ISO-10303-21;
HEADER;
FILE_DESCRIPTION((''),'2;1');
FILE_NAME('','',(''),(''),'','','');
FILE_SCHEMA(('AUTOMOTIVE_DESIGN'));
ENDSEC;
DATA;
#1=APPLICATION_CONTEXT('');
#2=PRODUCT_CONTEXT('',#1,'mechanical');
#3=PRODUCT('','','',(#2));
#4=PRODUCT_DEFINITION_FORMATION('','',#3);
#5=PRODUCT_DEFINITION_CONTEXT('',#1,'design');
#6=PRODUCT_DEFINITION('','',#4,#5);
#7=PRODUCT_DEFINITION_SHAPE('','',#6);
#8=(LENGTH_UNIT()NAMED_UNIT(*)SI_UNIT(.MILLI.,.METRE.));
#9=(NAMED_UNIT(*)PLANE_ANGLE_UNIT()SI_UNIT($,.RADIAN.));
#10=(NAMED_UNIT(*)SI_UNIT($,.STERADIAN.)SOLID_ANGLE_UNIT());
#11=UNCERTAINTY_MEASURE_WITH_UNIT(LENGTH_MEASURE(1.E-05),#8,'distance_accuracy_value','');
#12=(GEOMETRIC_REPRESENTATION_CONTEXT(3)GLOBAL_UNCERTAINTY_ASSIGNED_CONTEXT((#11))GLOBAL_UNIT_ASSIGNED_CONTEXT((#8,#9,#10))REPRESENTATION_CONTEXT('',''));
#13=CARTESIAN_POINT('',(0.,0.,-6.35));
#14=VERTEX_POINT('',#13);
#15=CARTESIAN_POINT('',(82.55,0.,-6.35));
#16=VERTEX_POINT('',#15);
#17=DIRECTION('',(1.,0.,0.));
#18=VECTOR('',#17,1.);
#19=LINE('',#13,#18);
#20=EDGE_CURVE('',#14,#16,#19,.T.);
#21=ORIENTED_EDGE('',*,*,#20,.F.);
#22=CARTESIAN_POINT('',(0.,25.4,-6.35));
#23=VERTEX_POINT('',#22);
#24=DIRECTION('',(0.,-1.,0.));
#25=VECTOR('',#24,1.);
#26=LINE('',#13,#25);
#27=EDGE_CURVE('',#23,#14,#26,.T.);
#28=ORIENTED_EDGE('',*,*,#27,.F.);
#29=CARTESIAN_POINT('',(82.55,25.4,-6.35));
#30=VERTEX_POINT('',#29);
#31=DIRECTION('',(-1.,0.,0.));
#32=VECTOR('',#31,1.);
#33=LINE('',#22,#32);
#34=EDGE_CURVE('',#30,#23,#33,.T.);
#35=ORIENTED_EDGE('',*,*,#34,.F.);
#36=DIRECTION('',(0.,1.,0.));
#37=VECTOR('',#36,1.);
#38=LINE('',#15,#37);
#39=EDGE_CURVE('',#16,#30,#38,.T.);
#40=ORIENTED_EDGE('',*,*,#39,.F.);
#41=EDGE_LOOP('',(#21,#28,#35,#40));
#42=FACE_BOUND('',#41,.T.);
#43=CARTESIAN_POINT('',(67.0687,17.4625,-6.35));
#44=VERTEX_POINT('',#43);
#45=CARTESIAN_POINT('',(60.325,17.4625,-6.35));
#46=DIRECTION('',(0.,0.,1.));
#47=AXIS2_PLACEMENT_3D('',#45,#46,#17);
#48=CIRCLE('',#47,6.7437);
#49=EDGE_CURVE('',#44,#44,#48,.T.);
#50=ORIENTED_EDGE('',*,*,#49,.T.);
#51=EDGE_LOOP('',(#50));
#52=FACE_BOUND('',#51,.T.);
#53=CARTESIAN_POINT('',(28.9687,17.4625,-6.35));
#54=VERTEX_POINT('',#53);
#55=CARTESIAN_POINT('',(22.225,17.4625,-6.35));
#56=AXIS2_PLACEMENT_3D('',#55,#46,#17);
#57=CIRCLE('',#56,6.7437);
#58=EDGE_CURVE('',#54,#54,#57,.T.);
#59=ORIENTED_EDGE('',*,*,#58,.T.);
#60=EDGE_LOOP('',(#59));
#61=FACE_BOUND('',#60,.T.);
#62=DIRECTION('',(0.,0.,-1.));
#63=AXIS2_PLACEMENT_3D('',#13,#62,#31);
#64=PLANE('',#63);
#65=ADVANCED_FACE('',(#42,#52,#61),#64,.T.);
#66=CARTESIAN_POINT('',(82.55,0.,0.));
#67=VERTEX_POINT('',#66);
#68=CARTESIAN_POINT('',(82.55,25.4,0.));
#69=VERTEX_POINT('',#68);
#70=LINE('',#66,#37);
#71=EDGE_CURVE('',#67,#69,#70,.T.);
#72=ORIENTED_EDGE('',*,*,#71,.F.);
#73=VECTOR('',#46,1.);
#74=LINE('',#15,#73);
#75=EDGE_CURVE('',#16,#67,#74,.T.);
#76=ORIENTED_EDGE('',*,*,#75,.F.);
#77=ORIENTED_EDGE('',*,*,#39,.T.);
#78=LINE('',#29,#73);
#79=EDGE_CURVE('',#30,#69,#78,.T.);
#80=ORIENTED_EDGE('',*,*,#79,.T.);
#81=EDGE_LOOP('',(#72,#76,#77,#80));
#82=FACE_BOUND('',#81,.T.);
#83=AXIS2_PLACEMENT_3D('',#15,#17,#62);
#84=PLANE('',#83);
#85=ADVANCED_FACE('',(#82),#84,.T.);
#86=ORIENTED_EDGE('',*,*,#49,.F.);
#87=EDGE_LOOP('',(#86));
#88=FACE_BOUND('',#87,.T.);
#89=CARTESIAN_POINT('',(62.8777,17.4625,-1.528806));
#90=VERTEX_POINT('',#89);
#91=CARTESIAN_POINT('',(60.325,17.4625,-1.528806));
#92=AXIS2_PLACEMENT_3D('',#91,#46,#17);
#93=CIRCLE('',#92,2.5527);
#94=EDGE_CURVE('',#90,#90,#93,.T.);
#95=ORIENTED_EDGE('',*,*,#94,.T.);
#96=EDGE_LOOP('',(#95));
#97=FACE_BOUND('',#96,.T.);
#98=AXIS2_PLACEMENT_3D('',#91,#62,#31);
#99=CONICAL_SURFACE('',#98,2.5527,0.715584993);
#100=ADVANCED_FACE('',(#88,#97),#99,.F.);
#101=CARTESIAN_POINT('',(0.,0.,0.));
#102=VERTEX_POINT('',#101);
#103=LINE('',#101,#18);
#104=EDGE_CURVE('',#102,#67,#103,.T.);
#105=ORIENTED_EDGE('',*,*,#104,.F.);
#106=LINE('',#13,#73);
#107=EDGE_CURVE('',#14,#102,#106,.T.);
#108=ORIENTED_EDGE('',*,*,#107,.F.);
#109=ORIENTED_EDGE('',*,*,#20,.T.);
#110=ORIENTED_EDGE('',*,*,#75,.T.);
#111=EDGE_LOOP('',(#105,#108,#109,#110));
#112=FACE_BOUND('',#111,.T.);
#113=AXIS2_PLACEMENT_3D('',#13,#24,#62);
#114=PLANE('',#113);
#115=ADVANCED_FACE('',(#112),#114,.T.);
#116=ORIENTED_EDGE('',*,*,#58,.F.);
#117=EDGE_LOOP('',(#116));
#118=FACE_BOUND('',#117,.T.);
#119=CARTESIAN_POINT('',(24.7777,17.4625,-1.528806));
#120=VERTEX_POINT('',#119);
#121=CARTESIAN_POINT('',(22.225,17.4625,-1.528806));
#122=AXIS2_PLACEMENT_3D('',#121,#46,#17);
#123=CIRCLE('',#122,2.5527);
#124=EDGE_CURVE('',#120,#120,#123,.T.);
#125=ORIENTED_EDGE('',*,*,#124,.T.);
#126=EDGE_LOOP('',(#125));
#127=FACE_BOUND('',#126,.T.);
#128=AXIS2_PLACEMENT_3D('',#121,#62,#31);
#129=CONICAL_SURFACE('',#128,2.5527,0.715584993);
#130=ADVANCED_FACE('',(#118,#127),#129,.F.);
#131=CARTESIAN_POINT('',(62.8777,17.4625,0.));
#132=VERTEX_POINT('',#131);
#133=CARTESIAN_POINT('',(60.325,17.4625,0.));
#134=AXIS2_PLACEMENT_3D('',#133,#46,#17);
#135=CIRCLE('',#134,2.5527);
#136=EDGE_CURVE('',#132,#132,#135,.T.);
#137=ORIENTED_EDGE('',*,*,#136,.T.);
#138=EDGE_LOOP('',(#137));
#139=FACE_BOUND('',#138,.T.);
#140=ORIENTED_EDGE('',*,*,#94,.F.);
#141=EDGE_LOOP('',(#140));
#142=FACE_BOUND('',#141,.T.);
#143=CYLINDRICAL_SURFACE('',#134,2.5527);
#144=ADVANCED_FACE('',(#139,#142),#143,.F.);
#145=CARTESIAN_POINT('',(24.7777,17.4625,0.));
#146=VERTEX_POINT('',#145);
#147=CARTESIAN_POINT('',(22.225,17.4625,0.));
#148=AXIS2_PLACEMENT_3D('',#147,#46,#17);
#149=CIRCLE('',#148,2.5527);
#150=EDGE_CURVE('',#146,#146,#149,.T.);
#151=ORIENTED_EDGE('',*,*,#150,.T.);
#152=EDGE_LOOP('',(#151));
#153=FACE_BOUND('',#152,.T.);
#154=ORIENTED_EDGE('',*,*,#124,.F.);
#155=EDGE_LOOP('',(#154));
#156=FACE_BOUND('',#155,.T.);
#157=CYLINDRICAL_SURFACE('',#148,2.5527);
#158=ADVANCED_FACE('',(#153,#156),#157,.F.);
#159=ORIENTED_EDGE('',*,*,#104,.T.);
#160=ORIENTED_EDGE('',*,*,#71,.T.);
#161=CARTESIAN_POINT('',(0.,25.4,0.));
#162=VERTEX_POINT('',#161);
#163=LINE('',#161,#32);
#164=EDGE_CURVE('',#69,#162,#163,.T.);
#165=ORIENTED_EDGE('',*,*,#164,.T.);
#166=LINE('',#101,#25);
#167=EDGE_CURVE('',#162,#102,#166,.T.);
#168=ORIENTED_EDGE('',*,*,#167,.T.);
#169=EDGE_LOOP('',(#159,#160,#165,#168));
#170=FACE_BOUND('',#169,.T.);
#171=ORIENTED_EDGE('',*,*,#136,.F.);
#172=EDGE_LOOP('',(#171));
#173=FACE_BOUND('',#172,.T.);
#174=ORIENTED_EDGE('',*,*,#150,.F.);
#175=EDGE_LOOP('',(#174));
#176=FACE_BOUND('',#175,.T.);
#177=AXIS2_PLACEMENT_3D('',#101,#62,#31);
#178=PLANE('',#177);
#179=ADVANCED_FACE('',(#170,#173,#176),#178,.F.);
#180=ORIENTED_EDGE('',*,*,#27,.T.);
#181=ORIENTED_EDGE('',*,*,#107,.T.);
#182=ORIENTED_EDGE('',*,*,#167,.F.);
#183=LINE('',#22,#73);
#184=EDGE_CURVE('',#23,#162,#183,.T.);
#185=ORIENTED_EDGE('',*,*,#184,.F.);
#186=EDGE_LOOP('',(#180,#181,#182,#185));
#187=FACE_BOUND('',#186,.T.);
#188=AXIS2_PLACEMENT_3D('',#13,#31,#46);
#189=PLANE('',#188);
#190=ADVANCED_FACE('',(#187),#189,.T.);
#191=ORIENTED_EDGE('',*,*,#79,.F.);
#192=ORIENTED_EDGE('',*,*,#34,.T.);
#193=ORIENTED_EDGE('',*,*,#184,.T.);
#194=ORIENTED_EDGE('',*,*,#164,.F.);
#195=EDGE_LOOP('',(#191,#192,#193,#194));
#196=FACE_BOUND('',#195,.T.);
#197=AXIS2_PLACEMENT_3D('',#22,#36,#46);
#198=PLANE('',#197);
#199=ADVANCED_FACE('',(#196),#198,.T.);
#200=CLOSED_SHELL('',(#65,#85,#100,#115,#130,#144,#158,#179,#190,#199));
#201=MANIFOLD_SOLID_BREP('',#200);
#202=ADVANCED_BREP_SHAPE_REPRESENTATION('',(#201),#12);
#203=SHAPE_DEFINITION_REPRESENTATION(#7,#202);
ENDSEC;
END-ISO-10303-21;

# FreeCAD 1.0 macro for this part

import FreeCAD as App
import Part
import Sketcher

V = App.Vector
Q = App.Units.Quantity

doc = App.newDocument("Part")
body = doc.addObject("PartDesign::Body", "Body")

# Sketch on XY plane
sketch1 = body.newObject("Sketcher::SketchObject", "Sketch")
sketch1.AttachmentSupport = (doc.getObject("XY_Plane"), [""])
sketch1.MapMode = "FlatFace"
sketch1.addGeometry([
    Part.LineSegment(V(0, 25, 0), V(0, 0, 0)),
    Part.LineSegment(V(0, 0, 0), V(83, 0, 0)),
    Part.LineSegment(V(83, 0, 0), V(83, 25, 0)),
    Part.LineSegment(V(83, 25, 0), V(0, 25, 0)),
], False)
sketch1.addConstraint([
    Sketcher.Constraint("Coincident", 0, 2, 1, 1),
    Sketcher.Constraint("Coincident", 1, 2, 2, 1),
    Sketcher.Constraint("Coincident", 2, 2, 3, 1),
    Sketcher.Constraint("Coincident", 3, 2, 0, 1),
    Sketcher.Constraint("Vertical", 0),
    Sketcher.Constraint("Horizontal", 1),
    Sketcher.Constraint("Vertical", 2),
    Sketcher.Constraint("Horizontal", 3),
    Sketcher.Constraint("Coincident", 0, 2, -1, 1),
    Sketcher.Constraint("DistanceY", 0, 2, 0, 1, Q("1 in")),
    Sketcher.Constraint("DistanceX", 1, 1, 1, 2, Q("3.25 in")),
])
pad1 = body.newObject("PartDesign::Pad", "Pad")
pad1.Profile = sketch1
pad1.Length = Q("0.25 in")
pad1.Reversed = True

# Sketch on YZ plane
sketch2 = body.newObject("Sketcher::SketchObject", "Sketch001")
sketch2.AttachmentSupport = (doc.getObject("YZ_Plane"), [""])
sketch2.MapMode = "FlatFace"
sketch2.AttachmentOffset = App.Placement(V(0, 0, 0.875 * 25.4), App.Rotation())
sketch2.addGeometry([
    Part.LineSegment(V(17.5, -6.3, 0), V(17.5, 0, 0)),  # 0
    Part.LineSegment(V(17.5, 0, 0), V(14.9, 0, 0)),  # 1
    Part.LineSegment(V(14.9, 0, 0), V(14.9, -1.5, 0)),  # 2
    Part.LineSegment(V(14.9, -1.5, 0), V(10.7, -6.3, 0)),  # 3
    Part.LineSegment(V(10.7, -6.3, 0), V(17.5, -6.3, 0)),  # 4
], False)
sketch2.addGeometry(Part.LineSegment(V(17.5, 0, 0), V(17.5, -6.3, 0)), True)  # axis
sketch2.addConstraint([
    Sketcher.Constraint("Coincident", 0, 2, 1, 1),
    Sketcher.Constraint("Coincident", 1, 2, 2, 1),
    Sketcher.Constraint("Coincident", 2, 2, 3, 1),
    Sketcher.Constraint("Coincident", 3, 2, 4, 1),
    Sketcher.Constraint("Coincident", 4, 2, 0, 1),
    Sketcher.Constraint("Vertical", 0),
    Sketcher.Constraint("Horizontal", 1),
    Sketcher.Constraint("Vertical", 2),
    Sketcher.Constraint("Horizontal", 4),
    Sketcher.Constraint("Vertical", 5),
    Sketcher.Constraint("Coincident", 5, 1, 0, 2),
    Sketcher.Constraint("PointOnObject", 0, 2, -1),
    Sketcher.Constraint("Horizontal", 3, 2, 5, 2),
    Sketcher.Constraint("Angle", 3, Q("-131 deg")),
    Sketcher.Constraint("DistanceY", 0, 1, 0, 2, Q("0.25 in")),
    Sketcher.Constraint("DistanceX", 1, 2, 1, 1, Q("0.1005 in")),
    Sketcher.Constraint("DistanceX", 4, 1, 4, 2, Q("0.2655 in")),
    Sketcher.Constraint("DistanceX", -1, 1, 0, 2, Q("0.6875 in")),
])
groove = body.newObject("PartDesign::Groove", "Groove")
groove.Profile = sketch2
groove.ReferenceAxis = (sketch2, ["Axis0"])
groove.Angle = 360
doc.recompute()

linearpattern = body.newObject("PartDesign::LinearPattern", "LinearPattern")
linearpattern.Originals = [groove]
linearpattern.Direction = (doc.getObject("X_Axis"), [""])
linearpattern.Mode = "offset"
linearpattern.Offset = Q("1.5 in")
linearpattern.Occurrences = 2
body.Tip = linearpattern

doc.recompute()
